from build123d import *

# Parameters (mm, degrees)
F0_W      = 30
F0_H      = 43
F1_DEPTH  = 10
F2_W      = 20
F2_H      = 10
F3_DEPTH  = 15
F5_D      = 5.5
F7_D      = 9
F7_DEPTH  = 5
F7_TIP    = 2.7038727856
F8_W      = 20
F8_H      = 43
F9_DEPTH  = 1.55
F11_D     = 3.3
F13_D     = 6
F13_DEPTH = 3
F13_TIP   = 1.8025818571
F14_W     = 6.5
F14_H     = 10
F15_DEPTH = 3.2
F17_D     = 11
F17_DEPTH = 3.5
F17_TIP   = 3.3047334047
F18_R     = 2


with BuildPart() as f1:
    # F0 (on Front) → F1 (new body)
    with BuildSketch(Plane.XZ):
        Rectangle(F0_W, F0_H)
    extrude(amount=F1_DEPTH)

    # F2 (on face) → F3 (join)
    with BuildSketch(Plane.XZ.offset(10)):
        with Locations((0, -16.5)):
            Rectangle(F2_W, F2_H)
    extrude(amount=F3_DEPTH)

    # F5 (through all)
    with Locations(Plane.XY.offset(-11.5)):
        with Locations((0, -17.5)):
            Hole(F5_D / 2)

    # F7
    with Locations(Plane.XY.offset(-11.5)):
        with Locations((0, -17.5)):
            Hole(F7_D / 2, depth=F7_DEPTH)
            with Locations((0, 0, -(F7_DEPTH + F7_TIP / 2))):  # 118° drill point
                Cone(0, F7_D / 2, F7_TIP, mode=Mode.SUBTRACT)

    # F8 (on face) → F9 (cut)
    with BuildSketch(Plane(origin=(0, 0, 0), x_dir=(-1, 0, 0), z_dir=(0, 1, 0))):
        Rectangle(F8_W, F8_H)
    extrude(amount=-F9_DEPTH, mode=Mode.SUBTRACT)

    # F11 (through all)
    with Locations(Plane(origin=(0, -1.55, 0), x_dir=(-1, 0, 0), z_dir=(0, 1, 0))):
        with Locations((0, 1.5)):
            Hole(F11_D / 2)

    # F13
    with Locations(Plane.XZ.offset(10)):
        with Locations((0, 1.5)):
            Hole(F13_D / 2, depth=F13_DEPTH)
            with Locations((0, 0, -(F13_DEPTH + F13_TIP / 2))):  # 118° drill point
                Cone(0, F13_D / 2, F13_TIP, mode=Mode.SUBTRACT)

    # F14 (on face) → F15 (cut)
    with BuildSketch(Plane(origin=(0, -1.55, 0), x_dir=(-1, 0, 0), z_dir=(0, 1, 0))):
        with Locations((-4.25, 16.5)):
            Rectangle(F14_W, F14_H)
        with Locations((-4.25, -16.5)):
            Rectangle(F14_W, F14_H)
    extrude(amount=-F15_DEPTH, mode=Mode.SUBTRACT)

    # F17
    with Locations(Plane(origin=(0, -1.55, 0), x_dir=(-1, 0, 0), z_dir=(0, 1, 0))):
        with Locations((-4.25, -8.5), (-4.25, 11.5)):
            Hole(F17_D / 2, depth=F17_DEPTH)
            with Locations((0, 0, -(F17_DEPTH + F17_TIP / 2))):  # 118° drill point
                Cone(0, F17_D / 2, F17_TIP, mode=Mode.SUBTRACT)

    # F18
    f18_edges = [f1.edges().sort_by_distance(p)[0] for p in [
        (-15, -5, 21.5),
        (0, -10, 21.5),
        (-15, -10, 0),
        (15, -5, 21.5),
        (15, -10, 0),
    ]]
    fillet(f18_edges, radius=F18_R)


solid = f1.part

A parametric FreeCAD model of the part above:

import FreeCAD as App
import Part
import Sketcher
from FreeCAD import Vector


def edges_at(feature, points):
    """Names of the edges that pass closest to the given points."""
    edges = feature.Shape.Edges
    near = lambda p: min(range(len(edges)), key=lambda i: edges[i].distToShape(Part.Vertex(*p))[0])
    return sorted({f"Edge{near(p) + 1}" for p in points})


def add_polygon(sketch, points):
    """Adds a closed chain of lines whose ends are joined by coincident constraints."""
    first, n = sketch.GeometryCount, len(points)
    for a, b in zip(points, points[1:] + points[:1]):
        sketch.addGeometry(Part.LineSegment(App.Vector(*a, 0), App.Vector(*b, 0)), False)
    for i in range(n):
        sketch.addConstraint(Sketcher.Constraint("Coincident", first + i, 2, first + (i + 1) % n, 1))

doc = App.newDocument("Part")
body = doc.addObject("PartDesign::Body", "Body")

sketch1 = body.newObject("Sketcher::SketchObject", "Sketch")
sketch1.AttachmentSupport = (doc.getObject("XZ_Plane"), [""])
sketch1.MapMode = "FlatFace"
add_polygon(sketch1, [(-15, 21.5), (-15, -21.5), (15, -21.5), (15, 21.5)])
sketch1.addConstraint(Sketcher.Constraint("Vertical", 0))
sketch1.addConstraint(Sketcher.Constraint("Horizontal", 1))
sketch1.addConstraint(Sketcher.Constraint("Vertical", 2))
sketch1.addConstraint(Sketcher.Constraint("Horizontal", 3))
sketch1.addConstraint(Sketcher.Constraint("Symmetric", 0, 2, 2, 2, -1, 1))
sketch1.addConstraint(Sketcher.Constraint("DistanceX", 1, 1, 1, 2, 30.0))
sketch1.addConstraint(Sketcher.Constraint("DistanceY", 0, 2, 0, 1, 43.0))
pad1 = body.newObject("PartDesign::Pad", "Pad")
pad1.Profile = sketch1
pad1.Length = 10

sketch2 = body.newObject("Sketcher::SketchObject", "Sketch001")
sketch2.AttachmentSupport = (doc.getObject("XZ_Plane"), [""])
sketch2.MapMode = "FlatFace"
sketch2.AttachmentOffset = App.Placement(Vector(0, 0, 10), App.Rotation())
add_polygon(sketch2, [(-10, -11.5), (-10, -21.5), (10, -21.5), (10, -11.5)])
sketch2.addConstraint(Sketcher.Constraint("Vertical", 0))
sketch2.addConstraint(Sketcher.Constraint("Horizontal", 1))
sketch2.addConstraint(Sketcher.Constraint("Vertical", 2))
sketch2.addConstraint(Sketcher.Constraint("Horizontal", 3))
sketch2.addConstraint(Sketcher.Constraint("DistanceX", 1, 1, 1, 2, 20.0))
sketch2.addConstraint(Sketcher.Constraint("DistanceY", 0, 2, 0, 1, 10.0))
sketch2.addConstraint(Sketcher.Constraint("DistanceX", 0, 2, -1, 1, 10.0))
sketch2.addConstraint(Sketcher.Constraint("DistanceY", 0, 2, -1, 1, 21.5))
pad2 = body.newObject("PartDesign::Pad", "Pad001")
pad2.Profile = sketch2
pad2.Length = 15

sketch3 = body.newObject("Sketcher::SketchObject", "Sketch002")
sketch3.AttachmentSupport = (doc.getObject("XY_Plane"), [""])
sketch3.MapMode = "FlatFace"
sketch3.AttachmentOffset = App.Placement(Vector(0, 0, -11.5), App.Rotation())
sketch3.addGeometry(Part.Circle(Vector(0, -17.5, 0), Vector(0, 0, 1), 2.75), False)
sketch3.addConstraint(Sketcher.Constraint("PointOnObject", 0, 3, -2))
sketch3.addConstraint(Sketcher.Constraint("Diameter", 0, 5.5))
sketch3.addConstraint(Sketcher.Constraint("DistanceY", 0, 3, -1, 1, 17.5))
doc.recompute()
hole = body.newObject("PartDesign::Hole", "Hole")
hole.Profile = sketch3
hole.ThreadType = "None"
hole.Diameter = 5.5
hole.DepthType = "ThroughAll"

sketch4 = body.newObject("Sketcher::SketchObject", "Sketch003")
sketch4.AttachmentSupport = (doc.getObject("XY_Plane"), [""])
sketch4.MapMode = "FlatFace"
sketch4.AttachmentOffset = App.Placement(Vector(0, 0, -11.5), App.Rotation())
sketch4.addGeometry(Part.Circle(Vector(0, -17.5, 0), Vector(0, 0, 1), 4.5), False)
sketch4.addConstraint(Sketcher.Constraint("PointOnObject", 0, 3, -2))
sketch4.addConstraint(Sketcher.Constraint("Diameter", 0, 9.0))
sketch4.addConstraint(Sketcher.Constraint("DistanceY", 0, 3, -1, 1, 17.5))
doc.recompute()
hole2 = body.newObject("PartDesign::Hole", "Hole001")
hole2.Profile = sketch4
hole2.ThreadType = "None"
hole2.Diameter = 9
hole2.DepthType = "Dimension"
hole2.Depth = 5
hole2.DrillPoint = "Angled"
hole2.DrillPointAngle = 118

sketch5 = body.newObject("Sketcher::SketchObject", "Sketch004")
sketch5.AttachmentSupport = (doc.getObject("XZ_Plane"), [""])
sketch5.MapMode = "FlatFace"
add_polygon(sketch5, [(10, 21.5), (10, -21.5), (-10, -21.5), (-10, 21.5)])
sketch5.addConstraint(Sketcher.Constraint("Vertical", 0))
sketch5.addConstraint(Sketcher.Constraint("Horizontal", 1))
sketch5.addConstraint(Sketcher.Constraint("Vertical", 2))
sketch5.addConstraint(Sketcher.Constraint("Horizontal", 3))
sketch5.addConstraint(Sketcher.Constraint("Symmetric", 0, 2, 2, 2, -1, 1))
sketch5.addConstraint(Sketcher.Constraint("DistanceX", 1, 2, 1, 1, 20.0))
sketch5.addConstraint(Sketcher.Constraint("DistanceY", 0, 2, 0, 1, 43.0))
pocket1 = body.newObject("PartDesign::Pocket", "Pocket")
pocket1.Profile = sketch5
pocket1.Length = 1.55
pocket1.Reversed = True

sketch6 = body.newObject("Sketcher::SketchObject", "Sketch005")
sketch6.AttachmentSupport = (doc.getObject("XZ_Plane"), [""])
sketch6.MapMode = "FlatFace"
sketch6.AttachmentOffset = App.Placement(Vector(0, 0, 1.55), App.Rotation())
sketch6.addGeometry(Part.Circle(Vector(0, 1.5, 0), Vector(0, 0, 1), 1.65), False)
sketch6.addConstraint(Sketcher.Constraint("PointOnObject", 0, 3, -2))
sketch6.addConstraint(Sketcher.Constraint("Diameter", 0, 3.3))
sketch6.addConstraint(Sketcher.Constraint("DistanceY", -1, 1, 0, 3, 1.5))
doc.recompute()
hole3 = body.newObject("PartDesign::Hole", "Hole002")
hole3.Profile = sketch6
hole3.ThreadType = "None"
hole3.Diameter = 3.3
hole3.DepthType = "ThroughAll"
hole3.Reversed = True

sketch7 = body.newObject("Sketcher::SketchObject", "Sketch006")
sketch7.AttachmentSupport = (doc.getObject("XZ_Plane"), [""])
sketch7.MapMode = "FlatFace"
sketch7.AttachmentOffset = App.Placement(Vector(0, 0, 10), App.Rotation())
sketch7.addGeometry(Part.Circle(Vector(0, 1.5, 0), Vector(0, 0, 1), 3), False)
sketch7.addConstraint(Sketcher.Constraint("PointOnObject", 0, 3, -2))
sketch7.addConstraint(Sketcher.Constraint("Diameter", 0, 6.0))
sketch7.addConstraint(Sketcher.Constraint("DistanceY", -1, 1, 0, 3, 1.5))
doc.recompute()
hole4 = body.newObject("PartDesign::Hole", "Hole003")
hole4.Profile = sketch7
hole4.ThreadType = "None"
hole4.Diameter = 6
hole4.DepthType = "Dimension"
hole4.Depth = 3
hole4.DrillPoint = "Angled"
hole4.DrillPointAngle = 118

sketch8 = body.newObject("Sketcher::SketchObject", "Sketch007")
sketch8.AttachmentSupport = (doc.getObject("XZ_Plane"), [""])
sketch8.MapMode = "FlatFace"
sketch8.AttachmentOffset = App.Placement(Vector(0, 0, 1.55), App.Rotation())
add_polygon(sketch8, [(7.5, 21.5), (7.5, 11.5), (1, 11.5), (1, 21.5)])
add_polygon(sketch8, [(7.5, -11.5), (7.5, -21.5), (1, -21.5), (1, -11.5)])
sketch8.addConstraint(Sketcher.Constraint("Vertical", 0))
sketch8.addConstraint(Sketcher.Constraint("Horizontal", 1))
sketch8.addConstraint(Sketcher.Constraint("Vertical", 2))
sketch8.addConstraint(Sketcher.Constraint("Horizontal", 3))
sketch8.addConstraint(Sketcher.Constraint("Vertical", 4))
sketch8.addConstraint(Sketcher.Constraint("Horizontal", 5))
sketch8.addConstraint(Sketcher.Constraint("Vertical", 6))
sketch8.addConstraint(Sketcher.Constraint("Horizontal", 7))
sketch8.addConstraint(Sketcher.Constraint("Symmetric", 3, 2, 4, 2, -1))
sketch8.addConstraint(Sketcher.Constraint("Symmetric", 1, 2, 6, 2, -1))
sketch8.addConstraint(Sketcher.Constraint("DistanceY", 0, 2, 0, 1, 10.0))
sketch8.addConstraint(Sketcher.Constraint("DistanceX", 1, 2, 1, 1, 6.5))
sketch8.addConstraint(Sketcher.Constraint("DistanceX", -1, 1, 1, 2, 1.0))
sketch8.addConstraint(Sketcher.Constraint("DistanceY", 4, 2, 0, 2, 33.0))
pocket2 = body.newObject("PartDesign::Pocket", "Pocket001")
pocket2.Profile = sketch8
pocket2.Length = 3.2
pocket2.Reversed = True

sketch9 = body.newObject("Sketcher::SketchObject", "Sketch008")
sketch9.AttachmentSupport = (doc.getObject("XZ_Plane"), [""])
sketch9.MapMode = "FlatFace"
sketch9.AttachmentOffset = App.Placement(Vector(0, 0, 1.55), App.Rotation())
sketch9.addGeometry(Part.Circle(Vector(4.25, -8.5, 0), Vector(0, 0, 1), 5.5), False)
sketch9.addGeometry(Part.Circle(Vector(4.25, 11.5, 0), Vector(0, 0, 1), 5.5), False)
sketch9.addConstraint(Sketcher.Constraint("Equal", 0, 1))
sketch9.addConstraint(Sketcher.Constraint("Vertical", 0, 3, 1, 3))
sketch9.addConstraint(Sketcher.Constraint("Diameter", 0, 11.0))
sketch9.addConstraint(Sketcher.Constraint("DistanceY", 0, 3, 1, 3, 20.0))
sketch9.addConstraint(Sketcher.Constraint("DistanceY", 0, 3, -1, 1, 8.5))
sketch9.addConstraint(Sketcher.Constraint("DistanceX", -1, 1, 0, 3, 4.25))
doc.recompute()
hole5 = body.newObject("PartDesign::Hole", "Hole004")
hole5.Profile = sketch9
hole5.ThreadType = "None"
hole5.Diameter = 11
hole5.DepthType = "Dimension"
hole5.Depth = 3.5
hole5.DrillPoint = "Angled"
hole5.DrillPointAngle = 118
hole5.Reversed = True
doc.recompute()

fillet = body.newObject("PartDesign::Fillet", "Fillet")
fillet.Base = (hole5, edges_at(hole5, [
    (-15, -5, 21.5),
    (0, -10, 21.5),
    (-15, -10, 0),
    (15, -5, 21.5),
    (15, -10, 0),
]))
fillet.Radius = 2

doc.recompute()
